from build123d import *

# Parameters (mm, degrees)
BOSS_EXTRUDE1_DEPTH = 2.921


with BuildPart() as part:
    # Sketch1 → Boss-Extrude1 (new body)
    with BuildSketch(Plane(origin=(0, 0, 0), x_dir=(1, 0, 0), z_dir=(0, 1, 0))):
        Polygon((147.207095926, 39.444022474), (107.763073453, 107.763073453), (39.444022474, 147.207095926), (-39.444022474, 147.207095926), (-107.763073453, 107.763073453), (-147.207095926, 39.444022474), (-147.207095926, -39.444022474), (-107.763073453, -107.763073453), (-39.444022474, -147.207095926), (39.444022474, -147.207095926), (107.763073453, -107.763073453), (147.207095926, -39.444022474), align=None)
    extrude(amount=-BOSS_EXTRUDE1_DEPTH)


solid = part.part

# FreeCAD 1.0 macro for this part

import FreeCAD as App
import Part
import Sketcher
from FreeCAD import Vector
Q = App.Units.Quantity

doc = App.newDocument("Part")
body = doc.addObject("PartDesign::Body", "Body")

sketch1 = doc.addObject("Sketcher::SketchObject", "Sketch")
body.addObject(sketch1)
sketch1.AttachmentSupport = (doc.XZ_Plane, [""])
sketch1.MapMode = "FlatFace"
sketch1.addGeometry([
    Part.LineSegment(Vector(147, -39, 0), Vector(108, -108, 0)),
    Part.LineSegment(Vector(108, -108, 0), Vector(39, -147, 0)),
    Part.LineSegment(Vector(39, -147, 0), Vector(-39, -147, 0)),
    Part.LineSegment(Vector(-39, -147, 0), Vector(-108, -108, 0)),
    Part.LineSegment(Vector(-108, -108, 0), Vector(-147, -39, 0)),
    Part.LineSegment(Vector(-147, -39, 0), Vector(-147, 39, 0)),
    Part.LineSegment(Vector(-147, 39, 0), Vector(-108, 108, 0)),
    Part.LineSegment(Vector(-108, 108, 0), Vector(-39, 147, 0)),
    Part.LineSegment(Vector(-39, 147, 0), Vector(39, 147, 0)),
    Part.LineSegment(Vector(39, 147, 0), Vector(108, 108, 0)),
    Part.LineSegment(Vector(108, 108, 0), Vector(147, 39, 0)),
    Part.LineSegment(Vector(147, 39, 0), Vector(147, -39, 0)),
], False)
sketch1.addConstraint([
    Sketcher.Constraint("Coincident", 0, 2, 1, 1),
    Sketcher.Constraint("Coincident", 1, 2, 2, 1),
    Sketcher.Constraint("Coincident", 2, 2, 3, 1),
    Sketcher.Constraint("Coincident", 3, 2, 4, 1),
    Sketcher.Constraint("Coincident", 4, 2, 5, 1),
    Sketcher.Constraint("Coincident", 5, 2, 6, 1),
    Sketcher.Constraint("Coincident", 6, 2, 7, 1),
    Sketcher.Constraint("Coincident", 7, 2, 8, 1),
    Sketcher.Constraint("Coincident", 8, 2, 9, 1),
    Sketcher.Constraint("Coincident", 9, 2, 10, 1),
    Sketcher.Constraint("Coincident", 10, 2, 11, 1),
    Sketcher.Constraint("Coincident", 11, 2, 0, 1),
    Sketcher.Constraint("Horizontal", 2),
    Sketcher.Constraint("Vertical", 5),
    Sketcher.Constraint("Horizontal", 8),
    Sketcher.Constraint("Vertical", 11),
    Sketcher.Constraint("Symmetric", 0, 2, 6, 2, -1, 1),
    Sketcher.Constraint("Symmetric", 1, 2, 7, 2, -1, 1),
    Sketcher.Constraint("Symmetric", 3, 2, 9, 2, -1, 1),
    Sketcher.Constraint("Symmetric", 4, 2, 10, 2, -1, 1),
    Sketcher.Constraint("Symmetric", 0, 2, 3, 2, -2),
    Sketcher.Constraint("Perpendicular", 0, 3),
    Sketcher.Constraint("Perpendicular", 1, 4),
    Sketcher.Constraint("Perpendicular", 3, 6),
    Sketcher.Constraint("Perpendicular", 6, 9),
    Sketcher.Constraint("Horizontal", 5, 2, 10, 2),
    Sketcher.Constraint("Equal", 8, 5),
    Sketcher.Constraint("Equal", 0, 1),
    Sketcher.Constraint("Angle", 0, Q("-120 deg")),
    Sketcher.Constraint("DistanceX", 2, 2, 2, 1, 78.888045),
    Sketcher.Constraint("DistanceX", 1, 2, 0, 2, 68.319051),
])
pad1 = doc.addObject("PartDesign::Pad", "Pad")
body.addObject(pad1)
pad1.Profile = sketch1
pad1.Length = Q("0.115 in")

doc.recompute()
